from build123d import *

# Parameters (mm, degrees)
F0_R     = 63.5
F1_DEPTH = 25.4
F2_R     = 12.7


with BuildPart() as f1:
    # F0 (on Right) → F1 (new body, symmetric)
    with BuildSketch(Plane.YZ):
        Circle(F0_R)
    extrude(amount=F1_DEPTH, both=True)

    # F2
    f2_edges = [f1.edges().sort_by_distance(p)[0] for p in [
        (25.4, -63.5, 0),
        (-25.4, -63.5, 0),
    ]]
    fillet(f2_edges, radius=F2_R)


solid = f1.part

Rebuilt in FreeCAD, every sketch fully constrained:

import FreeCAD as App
import Part
import Sketcher
from FreeCAD import Vector
Q = App.Units.Quantity


def edges_at(feature, points):
    """Names of the edges that pass closest to the given points."""
    edges = feature.Shape.Edges
    near = lambda p: min(range(len(edges)), key=lambda i: edges[i].distToShape(Part.Vertex(*p))[0])
    return sorted({f"Edge{near(p) + 1}" for p in points})

doc = App.newDocument("Part")
body = doc.addObject("PartDesign::Body", "Body")

sketch1 = doc.addObject("Sketcher::SketchObject", "Sketch")
body.addObject(sketch1)
sketch1.AttachmentSupport = (doc.YZ_Plane, [""])
sketch1.MapMode = "FlatFace"
sketch1.addGeometry(Part.Circle(Vector(0, 0, 0), Vector(0, 0, 1), 63.5), False)
sketch1.addConstraint([
    Sketcher.Constraint("Coincident", 0, 3, -1, 1),
    Sketcher.Constraint("Diameter", 0, Q("5 in")),
])
pad1 = doc.addObject("PartDesign::Pad", "Pad")
body.addObject(pad1)
pad1.Profile = sketch1
pad1.Length = Q("2 in")
pad1.Midplane = True
doc.recompute()

fillet = doc.addObject("PartDesign::Fillet", "Fillet")
body.addObject(fillet)
fillet.Base = (pad1, edges_at(pad1, [(25.4, -63.5, 0), (-25.4, -63.5, 0)]))
fillet.Radius = Q("0.5 in")

doc.recompute()
